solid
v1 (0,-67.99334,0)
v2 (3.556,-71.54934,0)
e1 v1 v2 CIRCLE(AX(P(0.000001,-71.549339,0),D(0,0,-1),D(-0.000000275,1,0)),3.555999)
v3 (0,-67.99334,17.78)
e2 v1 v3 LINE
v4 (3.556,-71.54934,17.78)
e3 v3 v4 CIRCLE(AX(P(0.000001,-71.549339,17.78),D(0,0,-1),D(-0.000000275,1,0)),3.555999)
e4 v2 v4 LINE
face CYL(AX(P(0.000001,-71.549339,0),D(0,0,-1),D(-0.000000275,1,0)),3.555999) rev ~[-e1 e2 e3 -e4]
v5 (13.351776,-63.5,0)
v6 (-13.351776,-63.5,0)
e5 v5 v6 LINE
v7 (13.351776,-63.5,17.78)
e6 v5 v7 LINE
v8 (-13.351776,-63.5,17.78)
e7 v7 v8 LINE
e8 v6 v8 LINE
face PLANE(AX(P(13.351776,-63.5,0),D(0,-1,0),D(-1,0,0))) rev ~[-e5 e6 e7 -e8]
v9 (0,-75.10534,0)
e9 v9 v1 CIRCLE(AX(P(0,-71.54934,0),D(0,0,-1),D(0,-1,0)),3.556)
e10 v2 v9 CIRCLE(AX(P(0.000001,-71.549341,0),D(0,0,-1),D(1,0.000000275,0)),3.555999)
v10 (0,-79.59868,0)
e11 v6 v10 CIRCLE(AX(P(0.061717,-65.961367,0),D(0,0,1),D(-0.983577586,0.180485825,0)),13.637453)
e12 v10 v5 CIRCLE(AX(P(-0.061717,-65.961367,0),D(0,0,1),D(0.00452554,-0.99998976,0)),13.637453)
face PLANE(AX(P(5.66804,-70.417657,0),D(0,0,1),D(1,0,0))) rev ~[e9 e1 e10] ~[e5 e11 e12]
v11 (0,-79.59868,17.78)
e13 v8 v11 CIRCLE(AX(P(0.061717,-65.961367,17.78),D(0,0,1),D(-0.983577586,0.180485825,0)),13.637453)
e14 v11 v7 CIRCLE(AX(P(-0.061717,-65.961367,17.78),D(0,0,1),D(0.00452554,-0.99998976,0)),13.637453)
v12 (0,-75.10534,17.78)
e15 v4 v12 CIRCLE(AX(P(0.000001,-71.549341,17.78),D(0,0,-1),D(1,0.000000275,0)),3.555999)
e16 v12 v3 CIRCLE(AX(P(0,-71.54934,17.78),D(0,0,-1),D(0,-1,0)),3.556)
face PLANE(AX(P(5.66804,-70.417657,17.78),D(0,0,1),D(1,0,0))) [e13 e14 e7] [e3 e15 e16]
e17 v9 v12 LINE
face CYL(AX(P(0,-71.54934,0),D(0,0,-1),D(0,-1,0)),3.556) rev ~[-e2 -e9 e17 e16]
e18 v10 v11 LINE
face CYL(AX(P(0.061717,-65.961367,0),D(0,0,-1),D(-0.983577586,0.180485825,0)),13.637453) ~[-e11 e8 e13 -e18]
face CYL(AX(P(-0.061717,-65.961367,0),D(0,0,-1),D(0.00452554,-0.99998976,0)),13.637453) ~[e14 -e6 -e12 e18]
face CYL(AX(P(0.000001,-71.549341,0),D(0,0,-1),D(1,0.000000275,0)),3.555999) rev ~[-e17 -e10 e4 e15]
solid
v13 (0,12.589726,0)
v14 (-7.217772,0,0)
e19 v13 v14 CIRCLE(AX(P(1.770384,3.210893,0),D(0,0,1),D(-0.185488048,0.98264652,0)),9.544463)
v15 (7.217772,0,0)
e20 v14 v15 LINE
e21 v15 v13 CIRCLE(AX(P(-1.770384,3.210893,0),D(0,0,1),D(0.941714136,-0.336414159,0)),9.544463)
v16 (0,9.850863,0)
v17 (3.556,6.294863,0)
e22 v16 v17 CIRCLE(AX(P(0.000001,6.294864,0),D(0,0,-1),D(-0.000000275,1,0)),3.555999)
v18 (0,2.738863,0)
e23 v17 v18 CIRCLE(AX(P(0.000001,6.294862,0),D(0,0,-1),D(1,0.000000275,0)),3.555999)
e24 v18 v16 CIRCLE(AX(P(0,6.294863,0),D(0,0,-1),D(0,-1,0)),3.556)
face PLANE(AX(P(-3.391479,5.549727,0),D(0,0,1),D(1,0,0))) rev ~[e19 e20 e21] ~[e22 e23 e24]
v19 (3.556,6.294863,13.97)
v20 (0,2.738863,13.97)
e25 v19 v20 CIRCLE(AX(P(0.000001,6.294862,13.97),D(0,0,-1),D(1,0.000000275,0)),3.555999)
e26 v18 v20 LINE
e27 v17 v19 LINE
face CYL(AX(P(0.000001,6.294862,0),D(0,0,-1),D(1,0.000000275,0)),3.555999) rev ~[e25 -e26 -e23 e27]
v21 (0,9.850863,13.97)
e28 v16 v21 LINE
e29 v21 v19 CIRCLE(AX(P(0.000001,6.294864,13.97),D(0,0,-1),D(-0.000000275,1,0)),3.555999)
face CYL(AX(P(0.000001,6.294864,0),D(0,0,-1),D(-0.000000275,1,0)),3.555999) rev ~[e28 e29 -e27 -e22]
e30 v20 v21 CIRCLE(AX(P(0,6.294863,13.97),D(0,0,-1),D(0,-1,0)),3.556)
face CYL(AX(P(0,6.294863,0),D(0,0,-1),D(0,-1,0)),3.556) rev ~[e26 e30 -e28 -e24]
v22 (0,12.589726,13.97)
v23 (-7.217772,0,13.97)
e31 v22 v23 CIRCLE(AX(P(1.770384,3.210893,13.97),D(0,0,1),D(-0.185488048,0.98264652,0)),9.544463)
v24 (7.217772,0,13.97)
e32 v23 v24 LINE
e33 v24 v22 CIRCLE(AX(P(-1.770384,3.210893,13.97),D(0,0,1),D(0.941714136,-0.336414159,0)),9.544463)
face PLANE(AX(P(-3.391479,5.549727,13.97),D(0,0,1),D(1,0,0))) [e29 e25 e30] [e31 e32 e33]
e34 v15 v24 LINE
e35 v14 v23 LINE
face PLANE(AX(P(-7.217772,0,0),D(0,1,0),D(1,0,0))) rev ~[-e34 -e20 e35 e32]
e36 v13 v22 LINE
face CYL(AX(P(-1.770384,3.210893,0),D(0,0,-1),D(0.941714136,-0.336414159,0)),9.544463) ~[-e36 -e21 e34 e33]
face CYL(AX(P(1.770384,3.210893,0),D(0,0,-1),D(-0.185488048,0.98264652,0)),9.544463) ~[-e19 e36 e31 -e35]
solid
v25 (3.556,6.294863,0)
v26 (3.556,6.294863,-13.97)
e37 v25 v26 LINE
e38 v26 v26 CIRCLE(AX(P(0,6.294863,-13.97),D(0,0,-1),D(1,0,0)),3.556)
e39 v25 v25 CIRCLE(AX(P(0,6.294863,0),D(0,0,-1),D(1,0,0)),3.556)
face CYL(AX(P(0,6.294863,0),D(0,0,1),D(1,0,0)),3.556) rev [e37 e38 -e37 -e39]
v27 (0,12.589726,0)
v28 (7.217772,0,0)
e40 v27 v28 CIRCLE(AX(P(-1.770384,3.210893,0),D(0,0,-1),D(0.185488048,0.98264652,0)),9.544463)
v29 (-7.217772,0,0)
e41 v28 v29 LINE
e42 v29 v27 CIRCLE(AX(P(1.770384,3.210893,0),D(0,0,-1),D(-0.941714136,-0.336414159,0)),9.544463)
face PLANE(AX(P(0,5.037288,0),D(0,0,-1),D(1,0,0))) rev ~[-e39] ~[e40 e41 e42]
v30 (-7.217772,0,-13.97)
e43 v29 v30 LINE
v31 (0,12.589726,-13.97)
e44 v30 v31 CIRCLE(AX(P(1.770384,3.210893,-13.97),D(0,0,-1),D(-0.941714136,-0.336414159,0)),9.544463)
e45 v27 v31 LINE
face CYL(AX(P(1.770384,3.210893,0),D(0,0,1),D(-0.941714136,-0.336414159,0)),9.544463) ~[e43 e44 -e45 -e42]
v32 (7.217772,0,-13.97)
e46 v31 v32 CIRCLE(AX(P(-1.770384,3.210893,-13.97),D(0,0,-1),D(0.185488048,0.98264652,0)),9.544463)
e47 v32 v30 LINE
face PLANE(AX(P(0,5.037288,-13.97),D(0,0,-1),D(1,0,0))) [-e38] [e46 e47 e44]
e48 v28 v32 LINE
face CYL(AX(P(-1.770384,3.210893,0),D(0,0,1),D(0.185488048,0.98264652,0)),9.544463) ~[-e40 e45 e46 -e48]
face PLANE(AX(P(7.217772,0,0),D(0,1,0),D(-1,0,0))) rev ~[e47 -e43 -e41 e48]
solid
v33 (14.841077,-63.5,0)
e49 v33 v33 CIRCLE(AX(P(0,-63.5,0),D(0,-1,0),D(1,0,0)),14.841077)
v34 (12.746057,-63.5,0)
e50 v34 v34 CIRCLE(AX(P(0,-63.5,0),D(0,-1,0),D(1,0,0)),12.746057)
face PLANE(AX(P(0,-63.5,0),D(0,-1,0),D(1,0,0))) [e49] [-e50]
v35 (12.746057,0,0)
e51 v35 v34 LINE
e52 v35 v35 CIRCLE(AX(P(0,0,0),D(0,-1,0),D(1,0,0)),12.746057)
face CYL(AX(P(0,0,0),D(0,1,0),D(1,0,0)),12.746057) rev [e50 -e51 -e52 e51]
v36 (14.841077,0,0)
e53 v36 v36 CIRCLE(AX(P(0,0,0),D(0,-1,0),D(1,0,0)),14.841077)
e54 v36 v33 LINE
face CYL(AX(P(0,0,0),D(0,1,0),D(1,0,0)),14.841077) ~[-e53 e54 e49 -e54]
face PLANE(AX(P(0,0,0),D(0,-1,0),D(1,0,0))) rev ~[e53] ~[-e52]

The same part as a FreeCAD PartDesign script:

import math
import FreeCAD as App
import Part
import Sketcher

V = App.Vector
Q = App.Units.Quantity

doc = App.newDocument("Part")
body = doc.addObject("PartDesign::Body", "Body")

sketch1 = doc.addObject("Sketcher::SketchObject", "Sketch")
body.addObject(sketch1)
sketch1.AttachmentSupport = (doc.XZ_Plane, [""])
sketch1.MapMode = "FlatFace"
sketch1.addGeometry(Part.Circle(V(0, 0, 0), V(0, 0, 1), 14.841077), False)
sketch1.addGeometry(Part.Circle(V(0, 0, 0), V(0, 0, 1), 12.746057), False)
sketch1.addConstraint(Sketcher.Constraint("Coincident", 0, 3, -1, 1))
sketch1.addConstraint(Sketcher.Constraint("Coincident", 1, 3, -1, 1))
sketch1.addConstraint(Sketcher.Constraint("Diameter", 0, 29.682154))
sketch1.addConstraint(Sketcher.Constraint("Diameter", 1, 25.492114))
pad1 = doc.addObject("PartDesign::Pad", "Pad")
body.addObject(pad1)
pad1.Profile = sketch1
pad1.Length = Q("2.5 in")
body2 = doc.addObject("PartDesign::Body", "Body001")

sketch2 = doc.addObject("Sketcher::SketchObject", "Sketch001")
body2.addObject(sketch2)
sketch2.AttachmentSupport = (doc.getObject("XY_Plane001"), [""])
sketch2.MapMode = "FlatFace"
sketch2.addGeometry(Part.ArcOfCircle(Part.Circle(V(1.770384, 3.210893, 0), V(0, 0, 1), 9.544463), math.radians(100.689588), math.radians(199.658555)), False)
sketch2.addGeometry(Part.LineSegment(V(-7.217772, 0, 0), V(7.217772, 0, 0)), False)
sketch2.addGeometry(Part.ArcOfCircle(Part.Circle(V(-1.770384, 3.210893, 0), V(0, 0, 1), 9.544463), math.radians(-19.658555), math.radians(79.310412)), False)
sketch2.addGeometry(Part.ArcOfCircle(Part.Circle(V(0, 6.294863, 0), V(0, 0, 1), 3.556), math.radians(90), math.radians(270)), False)
sketch2.addGeometry(Part.ArcOfCircle(Part.Circle(V(0.000001, 6.294864, 0), V(0, 0, 1), 3.555999), math.radians(-0.000016), math.radians(90.000016)), False)
sketch2.addGeometry(Part.ArcOfCircle(Part.Circle(V(0.000001, 6.294862, 0), V(0, 0, 1), 3.555999), math.radians(-90.000016), math.radians(0.000016)), False)
sketch2.addConstraint(Sketcher.Constraint("Coincident", 0, 2, 1, 1))
sketch2.addConstraint(Sketcher.Constraint("Coincident", 1, 2, 2, 1))
sketch2.addConstraint(Sketcher.Constraint("Coincident", 2, 2, 0, 1))
sketch2.addConstraint(Sketcher.Constraint("Tangent", 3, 1, 4, 2))
sketch2.addConstraint(Sketcher.Constraint("Tangent", 4, 1, 5, 2))
sketch2.addConstraint(Sketcher.Constraint("Tangent", 5, 1, 3, 2))
sketch2.addConstraint(Sketcher.Constraint("Horizontal", 1))
sketch2.addConstraint(Sketcher.Constraint("Equal", 0, 2))
sketch2.addConstraint(Sketcher.Constraint("Symmetric", 0, 2, 1, 2, -1, 1))
sketch2.addConstraint(Sketcher.Constraint("PointOnObject", 3, 3, -2))
sketch2.addConstraint(Sketcher.Constraint("PointOnObject", 2, 2, -2))
sketch2.addConstraint(Sketcher.Constraint("PointOnObject", 3, 1, -2))
sketch2.addConstraint(Sketcher.Constraint("PointOnObject", 5, 1, -2))
sketch2.addConstraint(Sketcher.Constraint("Horizontal", 5, 3, 4, 1))
sketch2.addConstraint(Sketcher.Constraint("Radius", 3, Q("0.14 in")))
sketch2.addConstraint(Sketcher.Constraint("DistanceX", -1, 1, 0, 3, Q("0.0697002 in")))
sketch2.addConstraint(Sketcher.Constraint("Radius", 0, 9.544463))
sketch2.addConstraint(Sketcher.Constraint("DistanceX", 1, 1, 1, 2, 14.435544))
sketch2.addConstraint(Sketcher.Constraint("DistanceY", 0, 3, 3, 3, 3.08397))
pad2 = doc.addObject("PartDesign::Pad", "Pad001")
body2.addObject(pad2)
pad2.Profile = sketch2
pad2.Length = Q("0.55 in")
body3 = doc.addObject("PartDesign::Body", "Body002")

sketch3 = doc.addObject("Sketcher::SketchObject", "Sketch002")
body3.addObject(sketch3)
sketch3.AttachmentSupport = (doc.getObject("XY_Plane002"), [""])
sketch3.MapMode = "FlatFace"
sketch3.addGeometry(Part.ArcOfCircle(Part.Circle(V(1.770384, 3.210893, 0), V(0, 0, 1), 9.544463), math.radians(100.689588), math.radians(199.658555)), False)
sketch3.addGeometry(Part.ArcOfCircle(Part.Circle(V(-1.770384, 3.210893, 0), V(0, 0, 1), 9.544463), math.radians(-19.658555), math.radians(79.310412)), False)
sketch3.addGeometry(Part.LineSegment(V(7.217772, 0, 0), V(-7.217772, 0, 0)), False)
sketch3.addGeometry(Part.Circle(V(0, 6.294863, 0), V(0, 0, 1), 3.556), False)
sketch3.addConstraint(Sketcher.Constraint("Coincident", 0, 1, 1, 2))
sketch3.addConstraint(Sketcher.Constraint("Coincident", 1, 1, 2, 1))
sketch3.addConstraint(Sketcher.Constraint("Coincident", 2, 2, 0, 2))
sketch3.addConstraint(Sketcher.Constraint("Horizontal", 2))
sketch3.addConstraint(Sketcher.Constraint("Equal", 0, 1))
sketch3.addConstraint(Sketcher.Constraint("Symmetric", 1, 1, 2, 2, -1, 1))
sketch3.addConstraint(Sketcher.Constraint("PointOnObject", 3, 3, -2))
sketch3.addConstraint(Sketcher.Constraint("PointOnObject", 0, 1, -2))
sketch3.addConstraint(Sketcher.Constraint("Diameter", 3, Q("0.28 in")))
sketch3.addConstraint(Sketcher.Constraint("DistanceX", -1, 1, 0, 3, Q("0.0697002 in")))
sketch3.addConstraint(Sketcher.Constraint("Radius", 0, 9.544463))
sketch3.addConstraint(Sketcher.Constraint("DistanceX", 2, 2, 2, 1, 14.435544))
sketch3.addConstraint(Sketcher.Constraint("DistanceY", 0, 3, 3, 3, 3.08397))
pad3 = doc.addObject("PartDesign::Pad", "Pad002")
body3.addObject(pad3)
pad3.Profile = sketch3
pad3.Length = Q("0.55 in")
pad3.Reversed = True
body4 = doc.addObject("PartDesign::Body", "Body003")

sketch4 = doc.addObject("Sketcher::SketchObject", "Sketch003")
body4.addObject(sketch4)
sketch4.AttachmentSupport = (doc.getObject("XY_Plane003"), [""])
sketch4.MapMode = "FlatFace"
sketch4.addGeometry(Part.LineSegment(V(13.351776, -63.5, 0), V(-13.351776, -63.5, 0)), False)
sketch4.addGeometry(Part.ArcOfCircle(Part.Circle(V(0.061717, -65.961367, 0), V(0, 0, 1), 13.637453), math.radians(169.601941), math.radians(269.740705)), False)
sketch4.addGeometry(Part.ArcOfCircle(Part.Circle(V(-0.061717, -65.961367, 0), V(0, 0, 1), 13.637453), math.radians(-89.740705), math.radians(10.398059)), False)
sketch4.addGeometry(Part.ArcOfCircle(Part.Circle(V(0.000001, -71.549339, 0), V(0, 0, 1), 3.555999), math.radians(-0.000016), math.radians(90.000016)), False)
sketch4.addGeometry(Part.ArcOfCircle(Part.Circle(V(0.000001, -71.549341, 0), V(0, 0, 1), 3.555999), math.radians(-90.000016), math.radians(0.000016)), False)
sketch4.addGeometry(Part.ArcOfCircle(Part.Circle(V(0, -71.54934, 0), V(0, 0, 1), 3.556), math.radians(90), math.radians(270)), False)
sketch4.addConstraint(Sketcher.Constraint("Coincident", 0, 2, 1, 1))
sketch4.addConstraint(Sketcher.Constraint("Coincident", 1, 2, 2, 1))
sketch4.addConstraint(Sketcher.Constraint("Coincident", 2, 2, 0, 1))
sketch4.addConstraint(Sketcher.Constraint("Tangent", 3, 1, 4, 2))
sketch4.addConstraint(Sketcher.Constraint("Tangent", 4, 1, 5, 2))
sketch4.addConstraint(Sketcher.Constraint("Tangent", 5, 1, 3, 2))
sketch4.addConstraint(Sketcher.Constraint("Horizontal", 0))
sketch4.addConstraint(Sketcher.Constraint("Equal", 1, 2))
sketch4.addConstraint(Sketcher.Constraint("Symmetric", 1, 3, 2, 3, -2))
sketch4.addConstraint(Sketcher.Constraint("PointOnObject", 3, 3, -2))
sketch4.addConstraint(Sketcher.Constraint("PointOnObject", 4, 1, -2))
sketch4.addConstraint(Sketcher.Constraint("PointOnObject", 5, 1, -2))
sketch4.addConstraint(Sketcher.Constraint("Horizontal", 5, 3, 3, 1))
sketch4.addConstraint(Sketcher.Constraint("Radius", 3, Q("0.14 in")))
sketch4.addConstraint(Sketcher.Constraint("DistanceY", 0, 2, -1, 1, Q("2.5 in")))
sketch4.addConstraint(Sketcher.Constraint("Radius", 1, 13.637453))
sketch4.addConstraint(Sketcher.Constraint("DistanceX", 0, 2, 0, 1, 26.703552))
sketch4.addConstraint(Sketcher.Constraint("DistanceY", 3, 3, -1, 1, 71.549339))
sketch4.addConstraint(Sketcher.Constraint("DistanceY", 1, 2, -1, 1, 79.59868))
pad4 = doc.addObject("PartDesign::Pad", "Pad003")
body4.addObject(pad4)
pad4.Profile = sketch4
pad4.Length = Q("0.7 in")

doc.recompute()
